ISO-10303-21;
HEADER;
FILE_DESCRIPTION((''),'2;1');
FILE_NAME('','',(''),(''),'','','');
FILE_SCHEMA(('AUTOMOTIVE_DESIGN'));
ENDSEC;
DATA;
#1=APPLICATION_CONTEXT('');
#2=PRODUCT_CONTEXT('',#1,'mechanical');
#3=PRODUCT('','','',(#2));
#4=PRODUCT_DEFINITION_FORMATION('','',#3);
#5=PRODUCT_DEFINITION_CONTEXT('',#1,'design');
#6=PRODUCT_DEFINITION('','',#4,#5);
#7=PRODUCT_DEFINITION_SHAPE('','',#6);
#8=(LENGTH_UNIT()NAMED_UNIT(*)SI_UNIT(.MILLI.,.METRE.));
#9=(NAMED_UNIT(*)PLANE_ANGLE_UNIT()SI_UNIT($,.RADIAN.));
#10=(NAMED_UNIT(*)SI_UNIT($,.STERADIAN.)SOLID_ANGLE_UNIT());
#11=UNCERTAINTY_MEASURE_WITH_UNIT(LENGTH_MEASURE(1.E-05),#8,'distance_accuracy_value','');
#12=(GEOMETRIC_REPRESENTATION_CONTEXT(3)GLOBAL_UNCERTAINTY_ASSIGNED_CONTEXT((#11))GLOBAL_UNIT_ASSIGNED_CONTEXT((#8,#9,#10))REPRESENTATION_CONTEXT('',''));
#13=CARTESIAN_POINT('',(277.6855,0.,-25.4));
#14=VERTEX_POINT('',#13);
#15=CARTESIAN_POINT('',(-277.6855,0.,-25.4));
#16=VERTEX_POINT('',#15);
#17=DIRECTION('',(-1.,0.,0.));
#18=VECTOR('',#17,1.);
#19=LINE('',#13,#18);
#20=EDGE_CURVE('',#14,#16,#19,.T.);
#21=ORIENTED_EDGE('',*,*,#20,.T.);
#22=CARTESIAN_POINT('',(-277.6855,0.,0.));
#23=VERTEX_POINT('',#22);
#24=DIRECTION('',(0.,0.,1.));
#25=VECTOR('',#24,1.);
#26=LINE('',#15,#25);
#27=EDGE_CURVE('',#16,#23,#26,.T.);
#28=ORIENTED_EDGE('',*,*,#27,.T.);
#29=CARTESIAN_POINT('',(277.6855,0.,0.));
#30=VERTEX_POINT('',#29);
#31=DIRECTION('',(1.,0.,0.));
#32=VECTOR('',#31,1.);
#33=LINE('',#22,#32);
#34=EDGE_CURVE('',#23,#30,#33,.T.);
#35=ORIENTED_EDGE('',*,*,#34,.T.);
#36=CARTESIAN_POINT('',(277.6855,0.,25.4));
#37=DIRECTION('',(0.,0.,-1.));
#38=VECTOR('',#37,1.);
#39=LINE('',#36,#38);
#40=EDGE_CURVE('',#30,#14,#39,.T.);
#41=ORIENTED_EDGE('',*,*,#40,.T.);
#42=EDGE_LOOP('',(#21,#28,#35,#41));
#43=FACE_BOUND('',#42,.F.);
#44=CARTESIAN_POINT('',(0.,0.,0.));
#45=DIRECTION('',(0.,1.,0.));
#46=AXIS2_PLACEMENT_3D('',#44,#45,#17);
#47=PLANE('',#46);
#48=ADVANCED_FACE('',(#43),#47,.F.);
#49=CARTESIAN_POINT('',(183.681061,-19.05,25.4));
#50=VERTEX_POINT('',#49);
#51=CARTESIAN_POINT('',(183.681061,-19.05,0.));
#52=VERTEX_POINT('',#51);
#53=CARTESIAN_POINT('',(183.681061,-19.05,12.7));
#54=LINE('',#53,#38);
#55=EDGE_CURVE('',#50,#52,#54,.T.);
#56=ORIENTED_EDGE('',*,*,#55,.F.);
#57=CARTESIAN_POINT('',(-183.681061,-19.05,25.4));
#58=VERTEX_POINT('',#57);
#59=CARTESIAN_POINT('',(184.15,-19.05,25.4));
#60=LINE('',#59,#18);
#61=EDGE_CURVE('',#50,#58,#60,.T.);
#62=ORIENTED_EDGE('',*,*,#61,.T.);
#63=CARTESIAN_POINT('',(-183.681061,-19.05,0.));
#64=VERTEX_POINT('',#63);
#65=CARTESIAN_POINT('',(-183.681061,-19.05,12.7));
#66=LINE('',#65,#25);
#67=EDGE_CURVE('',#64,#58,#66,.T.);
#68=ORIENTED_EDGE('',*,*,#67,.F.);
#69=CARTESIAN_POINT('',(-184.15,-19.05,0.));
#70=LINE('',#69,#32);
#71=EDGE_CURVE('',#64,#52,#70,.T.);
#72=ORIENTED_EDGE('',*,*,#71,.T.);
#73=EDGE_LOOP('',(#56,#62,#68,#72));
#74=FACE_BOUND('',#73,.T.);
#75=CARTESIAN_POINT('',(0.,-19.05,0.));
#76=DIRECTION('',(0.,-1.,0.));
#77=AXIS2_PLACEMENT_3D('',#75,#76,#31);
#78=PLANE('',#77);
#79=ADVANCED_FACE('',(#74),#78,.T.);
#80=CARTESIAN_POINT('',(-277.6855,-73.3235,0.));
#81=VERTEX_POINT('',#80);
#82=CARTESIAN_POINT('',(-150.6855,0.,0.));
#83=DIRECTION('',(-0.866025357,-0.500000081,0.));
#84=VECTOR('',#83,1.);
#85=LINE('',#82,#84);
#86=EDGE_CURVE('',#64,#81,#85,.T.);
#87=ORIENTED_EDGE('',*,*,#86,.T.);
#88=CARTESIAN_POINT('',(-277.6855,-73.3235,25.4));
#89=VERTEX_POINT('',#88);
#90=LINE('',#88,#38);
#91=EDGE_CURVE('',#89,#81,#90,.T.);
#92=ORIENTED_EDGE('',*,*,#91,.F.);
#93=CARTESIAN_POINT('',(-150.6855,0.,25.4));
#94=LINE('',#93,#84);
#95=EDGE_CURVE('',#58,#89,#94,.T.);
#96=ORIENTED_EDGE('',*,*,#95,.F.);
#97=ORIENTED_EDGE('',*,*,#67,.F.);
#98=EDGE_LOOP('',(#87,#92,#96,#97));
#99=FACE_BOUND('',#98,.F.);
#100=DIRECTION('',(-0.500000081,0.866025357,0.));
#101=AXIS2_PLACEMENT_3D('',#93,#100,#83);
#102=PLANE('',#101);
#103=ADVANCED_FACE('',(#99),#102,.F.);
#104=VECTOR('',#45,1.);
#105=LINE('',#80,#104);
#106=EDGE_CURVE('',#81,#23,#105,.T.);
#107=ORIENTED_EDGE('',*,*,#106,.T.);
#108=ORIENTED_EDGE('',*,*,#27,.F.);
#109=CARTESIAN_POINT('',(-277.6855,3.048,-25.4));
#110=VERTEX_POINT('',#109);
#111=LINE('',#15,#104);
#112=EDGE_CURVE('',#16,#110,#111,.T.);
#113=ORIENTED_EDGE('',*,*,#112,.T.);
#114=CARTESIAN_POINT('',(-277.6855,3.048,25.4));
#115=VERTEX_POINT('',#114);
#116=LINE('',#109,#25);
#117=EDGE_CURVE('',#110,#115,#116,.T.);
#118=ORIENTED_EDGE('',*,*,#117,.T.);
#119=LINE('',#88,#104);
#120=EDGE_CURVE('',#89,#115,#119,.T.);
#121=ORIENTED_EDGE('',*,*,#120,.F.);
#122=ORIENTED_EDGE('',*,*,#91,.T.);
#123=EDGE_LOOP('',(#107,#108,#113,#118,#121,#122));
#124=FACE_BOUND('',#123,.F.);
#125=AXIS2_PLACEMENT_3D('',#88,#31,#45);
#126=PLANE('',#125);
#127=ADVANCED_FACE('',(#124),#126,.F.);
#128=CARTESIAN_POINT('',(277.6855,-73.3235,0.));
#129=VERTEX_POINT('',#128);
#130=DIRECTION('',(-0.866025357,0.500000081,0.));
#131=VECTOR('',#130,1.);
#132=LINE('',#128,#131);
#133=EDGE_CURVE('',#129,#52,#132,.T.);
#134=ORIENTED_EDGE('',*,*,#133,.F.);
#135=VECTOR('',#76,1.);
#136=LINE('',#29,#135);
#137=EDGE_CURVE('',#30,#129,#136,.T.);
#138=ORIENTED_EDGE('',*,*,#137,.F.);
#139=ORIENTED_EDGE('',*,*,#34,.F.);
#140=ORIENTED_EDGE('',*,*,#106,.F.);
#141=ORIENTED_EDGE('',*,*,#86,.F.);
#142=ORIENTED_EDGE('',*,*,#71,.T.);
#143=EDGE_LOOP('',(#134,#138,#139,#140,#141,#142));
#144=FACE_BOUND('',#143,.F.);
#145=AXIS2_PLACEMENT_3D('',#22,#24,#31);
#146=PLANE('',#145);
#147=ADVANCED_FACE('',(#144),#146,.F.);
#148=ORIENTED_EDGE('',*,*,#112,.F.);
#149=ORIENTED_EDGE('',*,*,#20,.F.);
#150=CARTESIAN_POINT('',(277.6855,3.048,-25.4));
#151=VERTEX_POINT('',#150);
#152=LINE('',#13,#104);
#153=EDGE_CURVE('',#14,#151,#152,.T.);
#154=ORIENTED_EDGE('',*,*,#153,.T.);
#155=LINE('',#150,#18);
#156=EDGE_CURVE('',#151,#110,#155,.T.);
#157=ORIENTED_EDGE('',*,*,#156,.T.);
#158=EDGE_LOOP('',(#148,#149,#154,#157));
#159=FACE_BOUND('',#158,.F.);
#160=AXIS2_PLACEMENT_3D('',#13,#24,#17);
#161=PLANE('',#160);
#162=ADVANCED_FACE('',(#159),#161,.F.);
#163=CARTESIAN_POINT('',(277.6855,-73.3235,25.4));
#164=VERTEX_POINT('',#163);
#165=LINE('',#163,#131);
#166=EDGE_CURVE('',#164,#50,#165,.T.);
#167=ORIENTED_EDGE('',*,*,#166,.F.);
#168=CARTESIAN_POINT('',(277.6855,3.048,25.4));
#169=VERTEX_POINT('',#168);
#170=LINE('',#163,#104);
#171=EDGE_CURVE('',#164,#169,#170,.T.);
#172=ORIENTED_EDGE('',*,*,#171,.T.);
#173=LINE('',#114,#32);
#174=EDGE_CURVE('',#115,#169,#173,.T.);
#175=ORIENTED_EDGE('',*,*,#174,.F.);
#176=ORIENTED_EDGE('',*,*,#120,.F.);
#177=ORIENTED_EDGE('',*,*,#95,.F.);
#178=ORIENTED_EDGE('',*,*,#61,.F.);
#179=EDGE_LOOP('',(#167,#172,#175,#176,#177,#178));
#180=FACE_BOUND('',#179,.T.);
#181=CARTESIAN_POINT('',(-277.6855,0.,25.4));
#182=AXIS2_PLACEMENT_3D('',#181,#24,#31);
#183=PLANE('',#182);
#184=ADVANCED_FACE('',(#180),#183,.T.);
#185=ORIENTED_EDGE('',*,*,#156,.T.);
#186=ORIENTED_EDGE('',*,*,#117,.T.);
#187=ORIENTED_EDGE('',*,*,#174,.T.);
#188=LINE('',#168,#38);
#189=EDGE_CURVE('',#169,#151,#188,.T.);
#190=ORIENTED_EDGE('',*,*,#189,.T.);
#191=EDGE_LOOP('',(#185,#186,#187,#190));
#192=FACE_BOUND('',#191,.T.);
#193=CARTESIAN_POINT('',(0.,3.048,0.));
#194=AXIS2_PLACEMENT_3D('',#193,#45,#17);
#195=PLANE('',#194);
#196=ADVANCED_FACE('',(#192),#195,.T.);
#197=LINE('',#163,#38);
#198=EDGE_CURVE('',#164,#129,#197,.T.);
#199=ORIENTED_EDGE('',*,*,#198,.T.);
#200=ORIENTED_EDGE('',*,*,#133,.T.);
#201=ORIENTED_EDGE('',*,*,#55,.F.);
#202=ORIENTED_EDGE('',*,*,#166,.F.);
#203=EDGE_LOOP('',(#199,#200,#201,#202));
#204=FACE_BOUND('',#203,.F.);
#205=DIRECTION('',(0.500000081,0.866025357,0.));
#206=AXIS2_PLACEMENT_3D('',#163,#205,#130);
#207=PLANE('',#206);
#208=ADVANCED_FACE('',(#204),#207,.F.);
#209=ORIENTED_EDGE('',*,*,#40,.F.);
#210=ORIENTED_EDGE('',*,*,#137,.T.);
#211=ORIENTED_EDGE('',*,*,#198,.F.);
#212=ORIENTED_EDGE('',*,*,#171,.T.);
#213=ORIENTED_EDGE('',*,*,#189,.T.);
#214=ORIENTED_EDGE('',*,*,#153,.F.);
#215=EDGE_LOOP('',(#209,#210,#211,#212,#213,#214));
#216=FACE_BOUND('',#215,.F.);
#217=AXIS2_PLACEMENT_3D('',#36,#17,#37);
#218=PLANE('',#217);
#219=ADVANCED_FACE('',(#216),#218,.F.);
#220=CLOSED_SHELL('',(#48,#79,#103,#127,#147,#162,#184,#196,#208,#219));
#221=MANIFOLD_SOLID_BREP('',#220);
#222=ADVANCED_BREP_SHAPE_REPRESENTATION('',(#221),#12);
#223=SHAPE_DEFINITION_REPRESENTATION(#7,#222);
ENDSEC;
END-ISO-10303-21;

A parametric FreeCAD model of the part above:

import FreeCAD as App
import Part
import Sketcher

V = App.Vector
Q = App.Units.Quantity


def add_polygon(sketch, points):
    """Adds a closed chain of lines whose ends are joined by coincident constraints."""
    first, n = sketch.GeometryCount, len(points)
    for a, b in zip(points, points[1:] + points[:1]):
        sketch.addGeometry(Part.LineSegment(App.Vector(*a, 0), App.Vector(*b, 0)), False)
    for i in range(n):
        sketch.addConstraint(Sketcher.Constraint("Coincident", first + i, 2, first + (i + 1) % n, 1))

doc = App.newDocument("Part")
body = doc.addObject("PartDesign::Body", "Body")

sketch1 = body.newObject("Sketcher::SketchObject", "Sketch")
sketch1.AttachmentSupport = (doc.getObject("XZ_Plane"), [""])
sketch1.MapMode = "FlatFace"
add_polygon(sketch1, [(-278, -25), (-278, 25), (278, 25), (278, -25)])
sketch1.addConstraint(Sketcher.Constraint("Vertical", 0))
sketch1.addConstraint(Sketcher.Constraint("Horizontal", 1))
sketch1.addConstraint(Sketcher.Constraint("Vertical", 2))
sketch1.addConstraint(Sketcher.Constraint("Horizontal", 3))
sketch1.addConstraint(Sketcher.Constraint("Symmetric", 0, 2, 2, 2, -1, 1))
sketch1.addConstraint(Sketcher.Constraint("DistanceY", 0, 1, 0, 2, Q("2 in")))
sketch1.addConstraint(Sketcher.Constraint("DistanceX", 1, 1, 1, 2, Q("21.865 in")))
pad1 = body.newObject("PartDesign::Pad", "Pad")
pad1.Profile = sketch1
pad1.Length = Q("0.12 in")
pad1.Reversed = True

sketch2 = body.newObject("Sketcher::SketchObject", "Sketch001")
sketch2.AttachmentSupport = (doc.getObject("XY_Plane"), [""])
sketch2.MapMode = "FlatFace"
sketch2.AttachmentOffset = App.Placement(V(0, 0, 1 * 25.4), App.Rotation())
add_polygon(sketch2, [(278, 0), (151, 0), (278, -73)])
sketch2.addConstraint(Sketcher.Constraint("Horizontal", 0))
sketch2.addConstraint(Sketcher.Constraint("Vertical", 2))
sketch2.addConstraint(Sketcher.Constraint("PointOnObject", 0, 2, -1))
sketch2.addConstraint(Sketcher.Constraint("DistanceX", 0, 2, 0, 1, Q("5 in")))
sketch2.addConstraint(Sketcher.Constraint("Angle", 1, Q("-30 deg")))
sketch2.addConstraint(Sketcher.Constraint("DistanceX", -1, 1, 0, 2, Q("5.9325 in")))
pad2 = body.newObject("PartDesign::Pad", "Pad001")
pad2.Profile = sketch2
pad2.Length = Q("1 in")
pad2.Reversed = True

sketch3 = body.newObject("Sketcher::SketchObject", "Sketch002")
sketch3.AttachmentSupport = (doc.getObject("XY_Plane"), [""])
sketch3.MapMode = "FlatFace"
sketch3.AttachmentOffset = App.Placement(V(0, 0, 1 * 25.4), App.Rotation())
add_polygon(sketch3, [(-151, 0), (-278, 0), (-278, -73)])
sketch3.addConstraint(Sketcher.Constraint("Horizontal", 0))
sketch3.addConstraint(Sketcher.Constraint("Vertical", 1))
sketch3.addConstraint(Sketcher.Constraint("PointOnObject", 0, 2, -1))
sketch3.addConstraint(Sketcher.Constraint("DistanceX", 0, 2, 0, 1, Q("5 in")))
sketch3.addConstraint(Sketcher.Constraint("Angle", 2, Q("30 deg")))
sketch3.addConstraint(Sketcher.Constraint("DistanceX", 0, 2, -1, 1, Q("10.9325 in")))
pad3 = body.newObject("PartDesign::Pad", "Pad002")
pad3.Profile = sketch3
pad3.Length = Q("1 in")
pad3.Reversed = True

sketch4 = body.newObject("Sketcher::SketchObject", "Sketch003")
sketch4.AttachmentSupport = (doc.getObject("XZ_Plane"), [""])
sketch4.MapMode = "FlatFace"
add_polygon(sketch4, [(184, 0), (184, 25), (-184, 25), (-184, 0)])
sketch4.addConstraint(Sketcher.Constraint("Vertical", 0))
sketch4.addConstraint(Sketcher.Constraint("Horizontal", 1))
sketch4.addConstraint(Sketcher.Constraint("Vertical", 2))
sketch4.addConstraint(Sketcher.Constraint("Horizontal", 3))
sketch4.addConstraint(Sketcher.Constraint("Symmetric", 2, 2, 3, 2, -1, 1))
sketch4.addConstraint(Sketcher.Constraint("DistanceX", 1, 2, 1, 1, Q("14.5 in")))
sketch4.addConstraint(Sketcher.Constraint("DistanceY", 0, 1, 0, 2, Q("1 in")))
pad4 = body.newObject("PartDesign::Pad", "Pad003")
pad4.Profile = sketch4
pad4.Length = Q("0.75 in")

doc.recompute()
